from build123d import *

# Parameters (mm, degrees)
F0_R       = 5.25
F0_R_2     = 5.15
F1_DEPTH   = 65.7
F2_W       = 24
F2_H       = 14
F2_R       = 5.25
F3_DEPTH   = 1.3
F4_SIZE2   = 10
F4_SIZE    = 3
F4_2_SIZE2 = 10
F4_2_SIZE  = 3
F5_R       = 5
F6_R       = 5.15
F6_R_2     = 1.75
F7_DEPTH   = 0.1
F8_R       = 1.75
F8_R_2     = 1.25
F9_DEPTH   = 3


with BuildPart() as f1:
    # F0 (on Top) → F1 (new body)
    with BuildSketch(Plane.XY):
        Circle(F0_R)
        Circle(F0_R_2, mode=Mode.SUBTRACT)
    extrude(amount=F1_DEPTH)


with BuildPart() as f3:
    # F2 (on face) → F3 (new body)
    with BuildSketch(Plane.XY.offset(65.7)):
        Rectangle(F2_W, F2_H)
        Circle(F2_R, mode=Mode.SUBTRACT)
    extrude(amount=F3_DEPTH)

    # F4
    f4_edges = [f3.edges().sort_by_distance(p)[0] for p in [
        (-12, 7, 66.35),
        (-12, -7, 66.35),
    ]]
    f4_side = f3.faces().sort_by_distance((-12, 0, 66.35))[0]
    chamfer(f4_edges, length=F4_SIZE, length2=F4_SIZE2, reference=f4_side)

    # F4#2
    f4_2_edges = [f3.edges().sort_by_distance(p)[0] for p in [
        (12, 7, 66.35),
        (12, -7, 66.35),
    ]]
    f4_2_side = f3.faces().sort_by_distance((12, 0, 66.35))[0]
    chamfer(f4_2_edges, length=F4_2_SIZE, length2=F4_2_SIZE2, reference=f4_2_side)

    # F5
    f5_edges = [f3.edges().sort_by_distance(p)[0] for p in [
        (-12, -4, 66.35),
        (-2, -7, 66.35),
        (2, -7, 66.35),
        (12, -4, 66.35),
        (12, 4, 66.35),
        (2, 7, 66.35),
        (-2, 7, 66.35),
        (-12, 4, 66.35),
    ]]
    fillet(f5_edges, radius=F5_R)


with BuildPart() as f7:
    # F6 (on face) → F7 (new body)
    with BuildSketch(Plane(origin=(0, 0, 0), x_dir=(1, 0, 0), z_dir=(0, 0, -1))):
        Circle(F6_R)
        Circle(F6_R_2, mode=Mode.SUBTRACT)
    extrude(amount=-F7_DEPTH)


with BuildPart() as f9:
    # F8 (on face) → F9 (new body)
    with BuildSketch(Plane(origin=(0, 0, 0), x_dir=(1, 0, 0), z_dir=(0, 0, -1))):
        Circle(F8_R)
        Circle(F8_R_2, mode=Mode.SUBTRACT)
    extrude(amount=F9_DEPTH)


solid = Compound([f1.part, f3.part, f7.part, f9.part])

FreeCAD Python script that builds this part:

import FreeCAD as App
import Part
import Sketcher
from FreeCAD import Vector
Q = App.Units.Quantity


def edges_at(feature, points):
    """Names of the edges that pass closest to the given points."""
    edges = feature.Shape.Edges
    near = lambda p: min(range(len(edges)), key=lambda i: edges[i].distToShape(Part.Vertex(*p))[0])
    return sorted({f"Edge{near(p) + 1}" for p in points})

doc = App.newDocument("Part")
body = doc.addObject("PartDesign::Body", "Body")

sketch1 = body.newObject("Sketcher::SketchObject", "Sketch")
sketch1.AttachmentSupport = (doc.getObject("XY_Plane"), [""])
sketch1.MapMode = "FlatFace"
sketch1.addGeometry(Part.Circle(Vector(0, 0, 0), Vector(0, 0, 1), 5), False)
sketch1.addGeometry(Part.Circle(Vector(0, 0, 0), Vector(0, 0, 1), 5), False)
sketch1.addConstraint(Sketcher.Constraint("Coincident", 0, 3, -1, 1))
sketch1.addConstraint(Sketcher.Constraint("Coincident", 1, 3, -1, 1))
sketch1.addConstraint(Sketcher.Constraint("Diameter", 0, Q("10.5 mm")))
sketch1.addConstraint(Sketcher.Constraint("Diameter", 1, Q("10.3 mm")))
pad1 = body.newObject("PartDesign::Pad", "Pad")
pad1.Profile = sketch1
pad1.Length = 65.7
body2 = doc.addObject("PartDesign::Body", "Body001")

sketch2 = body2.newObject("Sketcher::SketchObject", "Sketch001")
sketch2.AttachmentSupport = (doc.getObject("XY_Plane001"), [""])
sketch2.MapMode = "FlatFace"
sketch2.AttachmentOffset = App.Placement(Vector(0, 0, 65.7), App.Rotation())
sketch2.addGeometry(Part.LineSegment(Vector(-12, 7, 0), Vector(-12, -7, 0)), False)
sketch2.addGeometry(Part.LineSegment(Vector(-12, -7, 0), Vector(12, -7, 0)), False)
sketch2.addGeometry(Part.LineSegment(Vector(12, -7, 0), Vector(12, 7, 0)), False)
sketch2.addGeometry(Part.LineSegment(Vector(12, 7, 0), Vector(-12, 7, 0)), False)
sketch2.addGeometry(Part.Circle(Vector(0, 0, 0), Vector(0, 0, 1), 5), False)
sketch2.addConstraint(Sketcher.Constraint("Coincident", 0, 2, 1, 1))
sketch2.addConstraint(Sketcher.Constraint("Coincident", 1, 2, 2, 1))
sketch2.addConstraint(Sketcher.Constraint("Coincident", 2, 2, 3, 1))
sketch2.addConstraint(Sketcher.Constraint("Coincident", 3, 2, 0, 1))
sketch2.addConstraint(Sketcher.Constraint("Vertical", 0))
sketch2.addConstraint(Sketcher.Constraint("Horizontal", 1))
sketch2.addConstraint(Sketcher.Constraint("Vertical", 2))
sketch2.addConstraint(Sketcher.Constraint("Horizontal", 3))
sketch2.addConstraint(Sketcher.Constraint("Coincident", 4, 3, -1, 1))
sketch2.addConstraint(Sketcher.Constraint("Symmetric", 0, 2, 2, 2, -1, 1))
sketch2.addConstraint(Sketcher.Constraint("Diameter", 4, Q("10.5 mm")))
sketch2.addConstraint(Sketcher.Constraint("DistanceX", 1, 1, 1, 2, Q("24 mm")))
sketch2.addConstraint(Sketcher.Constraint("DistanceY", 0, 2, 0, 1, Q("14 mm")))
pad2 = body2.newObject("PartDesign::Pad", "Pad001")
pad2.Profile = sketch2
pad2.Length = 1.3
doc.recompute()

chamfer = body2.newObject("PartDesign::Chamfer", "Chamfer")
chamfer.Base = (pad2, edges_at(pad2, [(-12, 7, 66.35), (-12, -7, 66.35)]))
chamfer.ChamferType = "Two distances"
chamfer.Size = 3
chamfer.Size2 = 10
doc.recompute()

chamfer2 = body2.newObject("PartDesign::Chamfer", "Chamfer001")
chamfer2.Base = (chamfer, edges_at(chamfer, [(12, 7, 66.35), (12, -7, 66.35)]))
chamfer2.ChamferType = "Two distances"
chamfer2.Size = 3
chamfer2.Size2 = 10
chamfer2.FlipDirection = True
doc.recompute()

fillet = body2.newObject("PartDesign::Fillet", "Fillet")
fillet.Base = (chamfer2, edges_at(chamfer2, [
    (-12, -4, 66.35),
    (-2, -7, 66.35),
    (2, -7, 66.35),
    (12, -4, 66.35),
    (12, 4, 66.35),
    (2, 7, 66.35),
    (-2, 7, 66.35),
    (-12, 4, 66.35),
]))
fillet.Radius = 5
body3 = doc.addObject("PartDesign::Body", "Body002")

sketch3 = body3.newObject("Sketcher::SketchObject", "Sketch002")
sketch3.AttachmentSupport = (doc.getObject("XY_Plane002"), [""])
sketch3.MapMode = "FlatFace"
sketch3.addGeometry(Part.Circle(Vector(0, 0, 0), Vector(0, 0, 1), 5.2), False)
sketch3.addGeometry(Part.Circle(Vector(0, 0, 0), Vector(0, 0, 1), 1.8), False)
sketch3.addConstraint(Sketcher.Constraint("Coincident", 0, 3, -1, 1))
sketch3.addConstraint(Sketcher.Constraint("Coincident", 1, 3, -1, 1))
sketch3.addConstraint(Sketcher.Constraint("Diameter", 0, Q("10.3 mm")))
sketch3.addConstraint(Sketcher.Constraint("Diameter", 1, Q("3.5 mm")))
pad3 = body3.newObject("PartDesign::Pad", "Pad002")
pad3.Profile = sketch3
pad3.Length = 0.1
body4 = doc.addObject("PartDesign::Body", "Body003")

sketch4 = body4.newObject("Sketcher::SketchObject", "Sketch003")
sketch4.AttachmentSupport = (doc.getObject("XY_Plane003"), [""])
sketch4.MapMode = "FlatFace"
sketch4.addGeometry(Part.Circle(Vector(0, 0, 0), Vector(0, 0, 1), 1.8), False)
sketch4.addGeometry(Part.Circle(Vector(0, 0, 0), Vector(0, 0, 1), 1.2), False)
sketch4.addConstraint(Sketcher.Constraint("Coincident", 0, 3, -1, 1))
sketch4.addConstraint(Sketcher.Constraint("Coincident", 1, 3, -1, 1))
sketch4.addConstraint(Sketcher.Constraint("Diameter", 0, Q("3.5 mm")))
sketch4.addConstraint(Sketcher.Constraint("Diameter", 1, Q("2.5 mm")))
pad4 = body4.newObject("PartDesign::Pad", "Pad003")
pad4.Profile = sketch4
pad4.Length = 3
pad4.Reversed = True

doc.recompute()
